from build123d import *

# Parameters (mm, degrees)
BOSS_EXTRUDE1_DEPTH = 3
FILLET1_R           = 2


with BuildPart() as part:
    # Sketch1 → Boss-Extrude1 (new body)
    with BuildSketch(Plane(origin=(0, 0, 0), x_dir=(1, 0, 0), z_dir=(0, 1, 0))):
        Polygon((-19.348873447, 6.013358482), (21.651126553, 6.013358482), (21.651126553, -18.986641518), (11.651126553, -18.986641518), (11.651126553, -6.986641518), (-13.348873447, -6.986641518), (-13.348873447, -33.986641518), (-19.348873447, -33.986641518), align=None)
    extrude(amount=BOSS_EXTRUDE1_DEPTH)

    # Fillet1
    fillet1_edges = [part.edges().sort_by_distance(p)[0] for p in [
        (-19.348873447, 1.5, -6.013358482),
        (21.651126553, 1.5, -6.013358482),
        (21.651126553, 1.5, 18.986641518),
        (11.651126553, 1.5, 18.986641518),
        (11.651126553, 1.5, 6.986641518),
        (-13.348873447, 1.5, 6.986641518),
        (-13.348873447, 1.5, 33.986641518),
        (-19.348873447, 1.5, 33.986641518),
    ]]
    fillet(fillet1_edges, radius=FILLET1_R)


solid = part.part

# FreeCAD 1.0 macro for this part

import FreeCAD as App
import Part
import Sketcher
from FreeCAD import Vector
Q = App.Units.Quantity


def edges_at(feature, points):
    """Names of the edges that pass closest to the given points."""
    edges = feature.Shape.Edges
    near = lambda p: min(range(len(edges)), key=lambda i: edges[i].distToShape(Part.Vertex(*p))[0])
    return sorted({f"Edge{near(p) + 1}" for p in points})


def add_polygon(sketch, points):
    """Adds a closed chain of lines whose ends are joined by coincident constraints."""
    first, n = sketch.GeometryCount, len(points)
    for a, b in zip(points, points[1:] + points[:1]):
        sketch.addGeometry(Part.LineSegment(App.Vector(*a, 0), App.Vector(*b, 0)), False)
    for i in range(n):
        sketch.addConstraint(Sketcher.Constraint("Coincident", first + i, 2, first + (i + 1) % n, 1))

doc = App.newDocument("Part")
params = doc.addObject("Spreadsheet::Sheet", "Params")
for row, (alias, value) in enumerate([
    ("sketch1_width", "41 mm"),
    ("sketch1_width2", "6 mm"),
    ("sketch1_width3", "25 mm"),
    ("sketch1_height", "40 mm"),
    ("sketch1_height2", "27 mm"),
    ("pad1_length", "3 mm"),
    ("fillet_radius", "2 mm"),
], start=1):
    params.set(f"A{row}", alias)
    params.set(f"B{row}", "=" + value)
    params.setAlias(f"B{row}", alias)

body = doc.addObject("PartDesign::Body", "Body")

# Sketch on XZ plane
sketch1 = doc.addObject("Sketcher::SketchObject", "Sketch")
body.addObject(sketch1)
sketch1.AttachmentSupport = (doc.XZ_Plane, [""])
sketch1.MapMode = "FlatFace"
add_polygon(sketch1, [(22, -6), (-19, -6), (-19, 34), (-13, 34), (-13, 7), (12, 7), (12, 19), (22, 19)])  # lines 0-7
sketch1.addConstraint([
    Sketcher.Constraint("Horizontal", 0),
    Sketcher.Constraint("Vertical", 1),
    Sketcher.Constraint("Horizontal", 2),
    Sketcher.Constraint("Vertical", 3),
    Sketcher.Constraint("Horizontal", 4),
    Sketcher.Constraint("Vertical", 5),
    Sketcher.Constraint("Horizontal", 6),
    Sketcher.Constraint("Vertical", 7),
    Sketcher.Constraint("Equal", 4, 7),
    Sketcher.Constraint("DistanceX", 0, 2, 0, 1, Q("41 mm")),
    Sketcher.Constraint("DistanceX", 2, 1, 2, 2, Q("6 mm")),
    Sketcher.Constraint("DistanceX", 4, 1, 4, 2, Q("25 mm")),
    Sketcher.Constraint("DistanceY", 1, 1, 1, 2, Q("40 mm")),
    Sketcher.Constraint("DistanceY", 3, 2, 3, 1, Q("27 mm")),
    Sketcher.Constraint("DistanceY", 0, 2, -1, 1, Q("6.013358 mm")),
    Sketcher.Constraint("DistanceX", 0, 2, -1, 1, Q("19.348873 mm")),
])
sketch1.setExpression("Constraints[17]", "Params.sketch1_width")
sketch1.setExpression("Constraints[18]", "Params.sketch1_width2")
sketch1.setExpression("Constraints[19]", "Params.sketch1_width3")
sketch1.setExpression("Constraints[20]", "Params.sketch1_height")
sketch1.setExpression("Constraints[21]", "Params.sketch1_height2")
pad1 = doc.addObject("PartDesign::Pad", "Pad")
body.addObject(pad1)
pad1.Profile = sketch1
pad1.setExpression("Length", "Params.pad1_length")
pad1.Reversed = True
doc.recompute()

fillet = doc.addObject("PartDesign::Fillet", "Fillet")
body.addObject(fillet)
fillet.Base = (pad1, edges_at(pad1, [
    (-19.349, 1.5, -6.013),
    (21.651, 1.5, -6.013),
    (21.651, 1.5, 18.987),
    (11.651, 1.5, 18.987),
    (11.651, 1.5, 6.987),
    (-13.349, 1.5, 6.987),
    (-13.349, 1.5, 33.987),
    (-19.349, 1.5, 33.987),
]))
fillet.setExpression("Radius", "Params.fillet_radius")

doc.recompute()
